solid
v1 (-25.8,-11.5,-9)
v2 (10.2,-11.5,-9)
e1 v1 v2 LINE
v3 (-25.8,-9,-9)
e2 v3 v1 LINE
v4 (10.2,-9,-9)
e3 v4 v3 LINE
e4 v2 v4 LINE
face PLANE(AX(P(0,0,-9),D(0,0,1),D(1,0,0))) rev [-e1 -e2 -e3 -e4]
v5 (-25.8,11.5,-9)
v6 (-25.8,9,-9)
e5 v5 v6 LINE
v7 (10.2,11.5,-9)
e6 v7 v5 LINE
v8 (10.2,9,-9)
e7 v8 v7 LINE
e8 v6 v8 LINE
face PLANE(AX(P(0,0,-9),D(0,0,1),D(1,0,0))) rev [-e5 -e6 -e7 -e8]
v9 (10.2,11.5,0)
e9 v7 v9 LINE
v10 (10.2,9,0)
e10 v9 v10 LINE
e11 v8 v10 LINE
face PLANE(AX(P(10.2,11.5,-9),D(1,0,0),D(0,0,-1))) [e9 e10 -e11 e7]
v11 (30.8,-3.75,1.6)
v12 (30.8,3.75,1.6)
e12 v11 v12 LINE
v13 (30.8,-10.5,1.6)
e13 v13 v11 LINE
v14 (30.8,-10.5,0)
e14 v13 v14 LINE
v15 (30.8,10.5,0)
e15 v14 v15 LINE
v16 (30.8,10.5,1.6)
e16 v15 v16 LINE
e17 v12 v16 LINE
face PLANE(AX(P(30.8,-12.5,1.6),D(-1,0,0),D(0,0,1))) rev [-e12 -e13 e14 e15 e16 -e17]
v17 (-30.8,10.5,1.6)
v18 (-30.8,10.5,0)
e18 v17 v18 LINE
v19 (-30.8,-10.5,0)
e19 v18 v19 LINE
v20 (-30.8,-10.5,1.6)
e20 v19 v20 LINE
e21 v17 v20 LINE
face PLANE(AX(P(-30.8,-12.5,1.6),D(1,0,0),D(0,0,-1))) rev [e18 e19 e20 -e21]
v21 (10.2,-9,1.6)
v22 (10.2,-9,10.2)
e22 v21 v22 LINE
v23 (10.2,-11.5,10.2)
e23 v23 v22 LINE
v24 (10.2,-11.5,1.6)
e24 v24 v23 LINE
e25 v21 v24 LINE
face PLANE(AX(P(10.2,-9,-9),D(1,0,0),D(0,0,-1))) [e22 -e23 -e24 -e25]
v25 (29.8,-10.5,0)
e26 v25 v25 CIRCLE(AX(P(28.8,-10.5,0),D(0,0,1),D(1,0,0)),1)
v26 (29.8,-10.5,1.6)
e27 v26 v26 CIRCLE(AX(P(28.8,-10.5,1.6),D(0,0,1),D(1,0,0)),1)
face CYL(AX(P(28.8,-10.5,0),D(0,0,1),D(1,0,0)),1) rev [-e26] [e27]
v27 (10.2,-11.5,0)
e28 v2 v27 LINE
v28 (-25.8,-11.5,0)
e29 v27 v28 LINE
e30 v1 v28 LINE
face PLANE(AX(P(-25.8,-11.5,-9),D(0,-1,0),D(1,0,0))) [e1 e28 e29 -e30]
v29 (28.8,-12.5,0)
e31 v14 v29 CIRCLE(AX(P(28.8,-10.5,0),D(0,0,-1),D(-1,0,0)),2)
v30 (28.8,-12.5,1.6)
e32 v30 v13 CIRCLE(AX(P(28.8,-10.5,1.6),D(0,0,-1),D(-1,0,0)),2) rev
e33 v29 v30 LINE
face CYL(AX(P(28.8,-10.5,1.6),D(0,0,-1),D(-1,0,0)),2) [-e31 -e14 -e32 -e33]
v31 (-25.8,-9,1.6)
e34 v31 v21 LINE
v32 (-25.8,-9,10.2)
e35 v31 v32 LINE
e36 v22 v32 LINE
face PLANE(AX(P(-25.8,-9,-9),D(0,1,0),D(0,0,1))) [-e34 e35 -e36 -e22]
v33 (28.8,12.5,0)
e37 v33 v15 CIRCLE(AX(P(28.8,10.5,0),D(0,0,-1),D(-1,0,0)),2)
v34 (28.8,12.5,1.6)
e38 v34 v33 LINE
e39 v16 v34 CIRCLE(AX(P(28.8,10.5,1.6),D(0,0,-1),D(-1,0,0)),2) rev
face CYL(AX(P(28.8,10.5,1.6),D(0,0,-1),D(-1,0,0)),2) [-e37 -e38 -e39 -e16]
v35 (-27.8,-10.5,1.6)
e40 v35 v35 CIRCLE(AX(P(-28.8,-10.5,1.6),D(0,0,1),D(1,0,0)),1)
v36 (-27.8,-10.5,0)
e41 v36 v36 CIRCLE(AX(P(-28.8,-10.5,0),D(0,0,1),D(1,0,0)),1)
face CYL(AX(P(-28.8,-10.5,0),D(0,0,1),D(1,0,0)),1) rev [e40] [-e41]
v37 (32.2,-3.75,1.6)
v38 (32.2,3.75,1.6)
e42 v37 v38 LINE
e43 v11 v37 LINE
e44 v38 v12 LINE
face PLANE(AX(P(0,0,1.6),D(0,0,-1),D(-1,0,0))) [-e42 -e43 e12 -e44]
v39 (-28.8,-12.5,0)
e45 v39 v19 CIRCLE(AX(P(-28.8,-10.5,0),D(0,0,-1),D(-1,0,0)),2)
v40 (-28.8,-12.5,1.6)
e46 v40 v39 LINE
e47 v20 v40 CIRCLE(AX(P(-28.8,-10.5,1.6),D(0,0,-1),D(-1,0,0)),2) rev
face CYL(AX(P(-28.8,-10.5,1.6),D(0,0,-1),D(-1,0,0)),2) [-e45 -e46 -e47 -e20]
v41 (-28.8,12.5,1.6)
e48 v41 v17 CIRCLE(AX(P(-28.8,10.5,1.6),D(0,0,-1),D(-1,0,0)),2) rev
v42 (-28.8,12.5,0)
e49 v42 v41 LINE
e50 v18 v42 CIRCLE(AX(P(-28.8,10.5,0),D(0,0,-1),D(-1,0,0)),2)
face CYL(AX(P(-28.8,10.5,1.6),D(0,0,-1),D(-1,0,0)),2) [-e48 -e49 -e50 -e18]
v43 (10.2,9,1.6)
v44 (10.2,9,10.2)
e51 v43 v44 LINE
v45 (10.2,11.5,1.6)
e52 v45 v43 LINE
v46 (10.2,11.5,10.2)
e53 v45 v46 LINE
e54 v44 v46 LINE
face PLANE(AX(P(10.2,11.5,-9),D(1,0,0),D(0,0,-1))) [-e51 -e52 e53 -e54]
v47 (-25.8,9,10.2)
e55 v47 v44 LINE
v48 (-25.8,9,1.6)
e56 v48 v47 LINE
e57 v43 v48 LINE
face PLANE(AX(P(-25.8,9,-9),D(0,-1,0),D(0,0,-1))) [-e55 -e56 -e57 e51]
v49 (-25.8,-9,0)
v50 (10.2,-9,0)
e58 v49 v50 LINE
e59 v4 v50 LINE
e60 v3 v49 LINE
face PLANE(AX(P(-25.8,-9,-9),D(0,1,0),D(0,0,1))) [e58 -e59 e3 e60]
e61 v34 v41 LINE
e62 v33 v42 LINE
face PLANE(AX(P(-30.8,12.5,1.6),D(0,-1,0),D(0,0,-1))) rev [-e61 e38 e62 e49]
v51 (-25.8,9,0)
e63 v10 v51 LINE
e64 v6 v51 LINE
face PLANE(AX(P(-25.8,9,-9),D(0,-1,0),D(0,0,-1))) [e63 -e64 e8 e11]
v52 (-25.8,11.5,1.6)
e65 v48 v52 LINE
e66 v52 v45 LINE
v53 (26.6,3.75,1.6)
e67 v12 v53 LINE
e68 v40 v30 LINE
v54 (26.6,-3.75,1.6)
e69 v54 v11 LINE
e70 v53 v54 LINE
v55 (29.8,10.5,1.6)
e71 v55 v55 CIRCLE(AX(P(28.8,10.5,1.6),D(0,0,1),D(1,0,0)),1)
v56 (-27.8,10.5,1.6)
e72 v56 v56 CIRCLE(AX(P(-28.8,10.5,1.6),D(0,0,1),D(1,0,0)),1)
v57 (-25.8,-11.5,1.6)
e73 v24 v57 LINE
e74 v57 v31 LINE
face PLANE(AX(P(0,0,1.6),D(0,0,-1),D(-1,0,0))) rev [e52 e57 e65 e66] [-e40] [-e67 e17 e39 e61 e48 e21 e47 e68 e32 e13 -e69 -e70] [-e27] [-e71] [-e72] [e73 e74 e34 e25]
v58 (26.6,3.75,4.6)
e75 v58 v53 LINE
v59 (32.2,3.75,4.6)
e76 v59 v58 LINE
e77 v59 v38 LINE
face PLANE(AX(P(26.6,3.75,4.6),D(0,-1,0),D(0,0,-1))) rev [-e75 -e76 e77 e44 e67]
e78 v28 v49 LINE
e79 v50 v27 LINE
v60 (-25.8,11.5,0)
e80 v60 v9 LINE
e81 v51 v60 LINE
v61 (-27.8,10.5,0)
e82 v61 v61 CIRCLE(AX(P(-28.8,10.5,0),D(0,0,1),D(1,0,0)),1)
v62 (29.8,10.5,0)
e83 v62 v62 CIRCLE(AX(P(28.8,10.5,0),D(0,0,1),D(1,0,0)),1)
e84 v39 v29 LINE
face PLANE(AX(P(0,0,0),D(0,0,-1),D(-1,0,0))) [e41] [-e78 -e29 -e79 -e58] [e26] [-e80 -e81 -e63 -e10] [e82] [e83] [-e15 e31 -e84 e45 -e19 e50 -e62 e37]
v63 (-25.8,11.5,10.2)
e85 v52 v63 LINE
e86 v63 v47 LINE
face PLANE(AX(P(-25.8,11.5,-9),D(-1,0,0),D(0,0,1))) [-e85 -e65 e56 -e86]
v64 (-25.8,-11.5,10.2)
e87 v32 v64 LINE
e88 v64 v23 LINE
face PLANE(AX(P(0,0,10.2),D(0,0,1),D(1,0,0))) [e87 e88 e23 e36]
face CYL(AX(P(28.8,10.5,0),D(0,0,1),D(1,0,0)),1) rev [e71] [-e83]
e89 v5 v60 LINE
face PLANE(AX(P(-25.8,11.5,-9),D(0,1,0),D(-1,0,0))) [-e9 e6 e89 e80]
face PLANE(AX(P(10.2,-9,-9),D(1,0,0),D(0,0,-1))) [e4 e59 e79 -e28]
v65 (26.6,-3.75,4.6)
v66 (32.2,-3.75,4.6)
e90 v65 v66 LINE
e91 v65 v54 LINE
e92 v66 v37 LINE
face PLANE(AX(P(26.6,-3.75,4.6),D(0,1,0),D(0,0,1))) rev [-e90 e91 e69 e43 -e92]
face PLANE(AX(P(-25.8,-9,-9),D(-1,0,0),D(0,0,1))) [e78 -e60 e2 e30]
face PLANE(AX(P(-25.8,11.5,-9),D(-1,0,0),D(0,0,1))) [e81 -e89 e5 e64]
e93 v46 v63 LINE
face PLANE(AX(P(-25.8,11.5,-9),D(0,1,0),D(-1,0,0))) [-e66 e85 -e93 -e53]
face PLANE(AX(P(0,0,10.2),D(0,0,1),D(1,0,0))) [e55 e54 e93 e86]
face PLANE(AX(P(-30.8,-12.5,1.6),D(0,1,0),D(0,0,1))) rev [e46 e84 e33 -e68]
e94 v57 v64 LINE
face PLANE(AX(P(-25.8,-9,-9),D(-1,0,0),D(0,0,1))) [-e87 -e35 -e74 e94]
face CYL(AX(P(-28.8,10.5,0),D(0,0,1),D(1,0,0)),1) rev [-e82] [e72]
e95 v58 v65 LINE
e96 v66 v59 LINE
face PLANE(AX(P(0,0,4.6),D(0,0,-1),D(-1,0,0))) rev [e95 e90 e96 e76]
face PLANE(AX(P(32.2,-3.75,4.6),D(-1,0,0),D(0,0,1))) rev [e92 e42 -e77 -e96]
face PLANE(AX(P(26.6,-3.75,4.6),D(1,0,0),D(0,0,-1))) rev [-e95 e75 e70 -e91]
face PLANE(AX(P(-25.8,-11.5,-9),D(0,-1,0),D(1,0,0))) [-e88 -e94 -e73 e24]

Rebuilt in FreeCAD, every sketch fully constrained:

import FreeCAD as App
import Part
import Sketcher
from FreeCAD import Vector
Q = App.Units.Quantity


def edges_at(feature, points):
    """Names of the edges that pass closest to the given points."""
    edges = feature.Shape.Edges
    near = lambda p: min(range(len(edges)), key=lambda i: edges[i].distToShape(Part.Vertex(*p))[0])
    return sorted({f"Edge{near(p) + 1}" for p in points})

doc = App.newDocument("Part")
body = doc.addObject("PartDesign::Body", "Body")

# Sketch on XY plane
sketch1 = doc.addObject("Sketcher::SketchObject", "Sketch")
body.addObject(sketch1)
sketch1.AttachmentSupport = (doc.XY_Plane, [""])
sketch1.MapMode = "FlatFace"
sketch1.addGeometry([
    Part.LineSegment(Vector(-30.8, 12.5, 0), Vector(-30.8, -12.5, 0)),
    Part.LineSegment(Vector(-30.8, -12.5, 0), Vector(30.8, -12.5, 0)),
    Part.LineSegment(Vector(30.8, -12.5, 0), Vector(30.8, 12.5, 0)),
    Part.LineSegment(Vector(30.8, 12.5, 0), Vector(-30.8, 12.5, 0)),
], False)
sketch1.addConstraint([
    Sketcher.Constraint("Coincident", 0, 2, 1, 1),
    Sketcher.Constraint("Coincident", 1, 2, 2, 1),
    Sketcher.Constraint("Coincident", 2, 2, 3, 1),
    Sketcher.Constraint("Coincident", 3, 2, 0, 1),
    Sketcher.Constraint("Vertical", 0),
    Sketcher.Constraint("Horizontal", 1),
    Sketcher.Constraint("Vertical", 2),
    Sketcher.Constraint("Horizontal", 3),
    Sketcher.Constraint("Symmetric", 0, 2, 2, 2, -1, 1),
    Sketcher.Constraint("DistanceY", 0, 2, 0, 1, Q("25 mm")),
    Sketcher.Constraint("DistanceX", 1, 1, 1, 2, Q("61.6 mm")),
])
pad1 = doc.addObject("PartDesign::Pad", "Pad")
body.addObject(pad1)
pad1.Profile = sketch1
pad1.Length = 1.6

# Sketch on XY plane
sketch2 = doc.addObject("Sketcher::SketchObject", "Sketch001")
body.addObject(sketch2)
sketch2.AttachmentSupport = (doc.XY_Plane, [""])
sketch2.MapMode = "FlatFace"
sketch2.AttachmentOffset = App.Placement(Vector(0, 0, 1.6), App.Rotation())
sketch2.addGeometry([
    Part.Circle(Vector(-28.8, 10.5, 0), Vector(0, 0, 1), 1),
    Part.Circle(Vector(28.8, 10.5, 0), Vector(0, 0, 1), 1),
    Part.Circle(Vector(28.8, -10.5, 0), Vector(0, 0, 1), 1),
    Part.Circle(Vector(-28.8, -10.5, 0), Vector(0, 0, 1), 1),
], False)
sketch2.addConstraint([
    Sketcher.Constraint("Equal", 0, 1),
    Sketcher.Constraint("Equal", 1, 2),
    Sketcher.Constraint("Equal", 2, 3),
    Sketcher.Constraint("Symmetric", 0, 3, 2, 3, -1, 1),
    Sketcher.Constraint("Symmetric", 1, 3, 3, 3, -1, 1),
    Sketcher.Constraint("Symmetric", 0, 3, 1, 3, -2),
    Sketcher.Constraint("Diameter", 0, Q("2 mm")),
    Sketcher.Constraint("DistanceY", 2, 3, 1, 3, Q("21 mm")),
    Sketcher.Constraint("DistanceX", 0, 3, -1, 1, Q("28.8 mm")),
])
pocket1 = doc.addObject("PartDesign::Pocket", "Pocket")
body.addObject(pocket1)
pocket1.Profile = sketch2
pocket1.Length = 1.6
doc.recompute()

fillet = doc.addObject("PartDesign::Fillet", "Fillet")
body.addObject(fillet)
fillet.Base = (pocket1, edges_at(pocket1, [
    (-30.8, 12.5, 0.8),
    (30.8, 12.5, 0.8),
    (30.8, -12.5, 0.8),
    (-30.8, -12.5, 0.8),
]))
fillet.Radius = 2

# Sketch on XY plane
sketch3 = doc.addObject("Sketcher::SketchObject", "Sketch002")
body.addObject(sketch3)
sketch3.AttachmentSupport = (doc.XY_Plane, [""])
sketch3.MapMode = "FlatFace"
sketch3.AttachmentOffset = App.Placement(Vector(0, 0, 1.6), App.Rotation())
sketch3.addGeometry([
    Part.LineSegment(Vector(26.6, 3.75, 0), Vector(26.6, -3.75, 0)),
    Part.LineSegment(Vector(26.6, -3.75, 0), Vector(32.2, -3.75, 0)),
    Part.LineSegment(Vector(32.2, -3.75, 0), Vector(32.2, 3.75, 0)),
    Part.LineSegment(Vector(32.2, 3.75, 0), Vector(26.6, 3.75, 0)),
], False)
sketch3.addConstraint([
    Sketcher.Constraint("Coincident", 0, 2, 1, 1),
    Sketcher.Constraint("Coincident", 1, 2, 2, 1),
    Sketcher.Constraint("Coincident", 2, 2, 3, 1),
    Sketcher.Constraint("Coincident", 3, 2, 0, 1),
    Sketcher.Constraint("Vertical", 0),
    Sketcher.Constraint("Horizontal", 1),
    Sketcher.Constraint("Vertical", 2),
    Sketcher.Constraint("Horizontal", 3),
    Sketcher.Constraint("DistanceX", 1, 1, 1, 2, Q("5.6 mm")),
    Sketcher.Constraint("DistanceY", 0, 2, 0, 1, Q("7.5 mm")),
    Sketcher.Constraint("DistanceX", -1, 1, 0, 2, Q("26.6 mm")),
    Sketcher.Constraint("DistanceY", 0, 2, -1, 1, Q("3.75 mm")),
])
pad2 = doc.addObject("PartDesign::Pad", "Pad001")
body.addObject(pad2)
pad2.Profile = sketch3
pad2.Length = 3

# Sketch on XY plane
sketch4 = doc.addObject("Sketcher::SketchObject", "Sketch003")
body.addObject(sketch4)
sketch4.AttachmentSupport = (doc.XY_Plane, [""])
sketch4.MapMode = "FlatFace"
sketch4.AttachmentOffset = App.Placement(Vector(0, 0, 1.6), App.Rotation())
sketch4.addGeometry([
    Part.LineSegment(Vector(-25.8, 11.5, 0), Vector(-25.8, 9, 0)),  # 0
    Part.LineSegment(Vector(-25.8, 9, 0), Vector(10.2, 9, 0)),  # 1
    Part.LineSegment(Vector(10.2, 9, 0), Vector(10.2, 11.5, 0)),  # 2
    Part.LineSegment(Vector(10.2, 11.5, 0), Vector(-25.8, 11.5, 0)),  # 3
    Part.LineSegment(Vector(-25.8, -9, 0), Vector(-25.8, -11.5, 0)),  # 4
    Part.LineSegment(Vector(-25.8, -11.5, 0), Vector(10.2, -11.5, 0)),  # 5
    Part.LineSegment(Vector(10.2, -11.5, 0), Vector(10.2, -9, 0)),  # 6
    Part.LineSegment(Vector(10.2, -9, 0), Vector(-25.8, -9, 0)),  # 7
], False)
sketch4.addConstraint([
    Sketcher.Constraint("Coincident", 0, 2, 1, 1),
    Sketcher.Constraint("Coincident", 1, 2, 2, 1),
    Sketcher.Constraint("Coincident", 2, 2, 3, 1),
    Sketcher.Constraint("Coincident", 3, 2, 0, 1),
    Sketcher.Constraint("Coincident", 4, 2, 5, 1),
    Sketcher.Constraint("Coincident", 5, 2, 6, 1),
    Sketcher.Constraint("Coincident", 6, 2, 7, 1),
    Sketcher.Constraint("Coincident", 7, 2, 4, 1),
    Sketcher.Constraint("Vertical", 0),
    Sketcher.Constraint("Horizontal", 1),
    Sketcher.Constraint("Vertical", 2),
    Sketcher.Constraint("Horizontal", 3),
    Sketcher.Constraint("Vertical", 4),
    Sketcher.Constraint("Horizontal", 5),
    Sketcher.Constraint("Vertical", 6),
    Sketcher.Constraint("Horizontal", 7),
    Sketcher.Constraint("Symmetric", 3, 2, 4, 2, -1),
    Sketcher.Constraint("Symmetric", 1, 2, 6, 2, -1),
    Sketcher.Constraint("DistanceX", 1, 1, 1, 2, Q("36 mm")),
    Sketcher.Constraint("DistanceY", 0, 2, 0, 1, Q("2.5 mm")),
    Sketcher.Constraint("DistanceY", -1, 1, 0, 2, Q("9 mm")),
    Sketcher.Constraint("DistanceX", 0, 2, -1, 1, Q("25.8 mm")),
])
pad3 = doc.addObject("PartDesign::Pad", "Pad002")
body.addObject(pad3)
pad3.Profile = sketch4
pad3.Type = "TwoLengths"
pad3.Length = 8.6
pad3.Length2 = 10.6

doc.recompute()
